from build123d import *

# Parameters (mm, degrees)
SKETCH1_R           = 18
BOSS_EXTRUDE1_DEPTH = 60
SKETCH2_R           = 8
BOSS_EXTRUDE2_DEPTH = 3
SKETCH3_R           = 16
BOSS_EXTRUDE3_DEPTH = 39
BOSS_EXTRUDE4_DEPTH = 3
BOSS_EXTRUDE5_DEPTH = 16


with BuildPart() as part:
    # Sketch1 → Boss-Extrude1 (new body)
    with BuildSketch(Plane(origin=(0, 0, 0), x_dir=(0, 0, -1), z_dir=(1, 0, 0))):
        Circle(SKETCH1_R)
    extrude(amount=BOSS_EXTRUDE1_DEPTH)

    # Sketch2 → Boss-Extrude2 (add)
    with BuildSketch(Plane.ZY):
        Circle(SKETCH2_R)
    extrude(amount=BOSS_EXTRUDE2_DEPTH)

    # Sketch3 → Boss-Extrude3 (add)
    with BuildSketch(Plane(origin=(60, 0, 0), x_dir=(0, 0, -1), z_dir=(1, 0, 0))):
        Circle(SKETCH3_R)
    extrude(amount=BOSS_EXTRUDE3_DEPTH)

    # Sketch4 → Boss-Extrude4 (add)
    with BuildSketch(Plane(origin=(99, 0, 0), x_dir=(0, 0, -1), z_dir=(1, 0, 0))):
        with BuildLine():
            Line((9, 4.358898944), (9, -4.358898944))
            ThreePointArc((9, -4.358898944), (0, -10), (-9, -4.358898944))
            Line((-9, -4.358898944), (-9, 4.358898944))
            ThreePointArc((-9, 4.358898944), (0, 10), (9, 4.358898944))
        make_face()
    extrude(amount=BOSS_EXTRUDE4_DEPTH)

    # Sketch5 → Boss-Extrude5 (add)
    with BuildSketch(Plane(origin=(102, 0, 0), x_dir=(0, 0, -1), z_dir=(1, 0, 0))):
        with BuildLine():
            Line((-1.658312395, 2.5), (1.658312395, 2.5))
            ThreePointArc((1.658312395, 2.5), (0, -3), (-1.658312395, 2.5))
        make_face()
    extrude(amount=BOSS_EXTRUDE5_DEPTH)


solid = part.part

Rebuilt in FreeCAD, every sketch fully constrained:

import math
import FreeCAD as App
import Part
import Sketcher
from FreeCAD import Vector
Q = App.Units.Quantity

doc = App.newDocument("Part")
body = doc.addObject("PartDesign::Body", "Body")

# Sketch on YZ plane
sketch1 = body.newObject("Sketcher::SketchObject", "Sketch")
sketch1.AttachmentSupport = (doc.getObject("YZ_Plane"), [""])
sketch1.MapMode = "FlatFace"
sketch1.addGeometry(Part.Circle(Vector(0, 0, 0), Vector(0, 0, 1), 18), False)
sketch1.addConstraint(Sketcher.Constraint("Coincident", 0, 3, -1, 1))
sketch1.addConstraint(Sketcher.Constraint("Diameter", 0, Q("36 mm")))
pad1 = body.newObject("PartDesign::Pad", "Pad")
pad1.Profile = sketch1
pad1.Length = 60

# Sketch on YZ plane
sketch2 = body.newObject("Sketcher::SketchObject", "Sketch001")
sketch2.AttachmentSupport = (doc.getObject("YZ_Plane"), [""])
sketch2.MapMode = "FlatFace"
sketch2.addGeometry(Part.Circle(Vector(0, 0, 0), Vector(0, 0, 1), 8), False)
sketch2.addConstraint(Sketcher.Constraint("Coincident", 0, 3, -1, 1))
sketch2.addConstraint(Sketcher.Constraint("Diameter", 0, Q("16 mm")))
pad2 = body.newObject("PartDesign::Pad", "Pad001")
pad2.Profile = sketch2
pad2.Length = 3
pad2.Reversed = True

# Sketch on YZ plane
sketch3 = body.newObject("Sketcher::SketchObject", "Sketch002")
sketch3.AttachmentSupport = (doc.getObject("YZ_Plane"), [""])
sketch3.MapMode = "FlatFace"
sketch3.AttachmentOffset = App.Placement(Vector(0, 0, 60), App.Rotation())
sketch3.addGeometry(Part.Circle(Vector(0, 0, 0), Vector(0, 0, 1), 16), False)
sketch3.addConstraint(Sketcher.Constraint("Coincident", 0, 3, -1, 1))
sketch3.addConstraint(Sketcher.Constraint("Diameter", 0, Q("32 mm")))
pad3 = body.newObject("PartDesign::Pad", "Pad002")
pad3.Profile = sketch3
pad3.Length = 39

# Sketch on YZ plane
sketch4 = body.newObject("Sketcher::SketchObject", "Sketch003")
sketch4.AttachmentSupport = (doc.getObject("YZ_Plane"), [""])
sketch4.MapMode = "FlatFace"
sketch4.AttachmentOffset = App.Placement(Vector(0, 0, 99), App.Rotation())
sketch4.addGeometry(Part.LineSegment(Vector(-4, -9, 0), Vector(4, -9, 0)), False)
sketch4.addGeometry(Part.ArcOfCircle(Part.Circle(Vector(0, 0, 0), Vector(0, 0, 1), 10), math.radians(-64), math.radians(64)), False)
sketch4.addGeometry(Part.LineSegment(Vector(4, 9, 0), Vector(-4, 9, 0)), False)
sketch4.addGeometry(Part.ArcOfCircle(Part.Circle(Vector(0, 0, 0), Vector(0, 0, 1), 10), math.radians(116), math.radians(244)), False)
sketch4.addConstraint(Sketcher.Constraint("Coincident", 0, 2, 1, 1))
sketch4.addConstraint(Sketcher.Constraint("Coincident", 1, 2, 2, 1))
sketch4.addConstraint(Sketcher.Constraint("Coincident", 2, 2, 3, 1))
sketch4.addConstraint(Sketcher.Constraint("Coincident", 3, 2, 0, 1))
sketch4.addConstraint(Sketcher.Constraint("Horizontal", 0))
sketch4.addConstraint(Sketcher.Constraint("Horizontal", 2))
sketch4.addConstraint(Sketcher.Constraint("Coincident", 1, 3, -1, 1))
sketch4.addConstraint(Sketcher.Constraint("Coincident", 3, 3, -1, 1))
sketch4.addConstraint(Sketcher.Constraint("Equal", 1, 3))
sketch4.addConstraint(Sketcher.Constraint("Vertical", 0, 2, 1, 2))
sketch4.addConstraint(Sketcher.Constraint("Radius", 1, Q("10 mm")))
sketch4.addConstraint(Sketcher.Constraint("DistanceY", 0, 2, -1, 1, Q("9 mm")))
pad4 = body.newObject("PartDesign::Pad", "Pad003")
pad4.Profile = sketch4
pad4.Length = 3

# Sketch on YZ plane
sketch5 = body.newObject("Sketcher::SketchObject", "Sketch004")
sketch5.AttachmentSupport = (doc.getObject("YZ_Plane"), [""])
sketch5.MapMode = "FlatFace"
sketch5.AttachmentOffset = App.Placement(Vector(0, 0, 102), App.Rotation())
sketch5.addGeometry(Part.LineSegment(Vector(2.5, -1.7, 0), Vector(2.5, 1.7, 0)), False)
sketch5.addGeometry(Part.ArcOfCircle(Part.Circle(Vector(0, 0, 0), Vector(0, 0, 1), 3), math.radians(34), math.radians(326)), False)
sketch5.addConstraint(Sketcher.Constraint("Coincident", 0, 1, 1, 2))
sketch5.addConstraint(Sketcher.Constraint("Coincident", 1, 1, 0, 2))
sketch5.addConstraint(Sketcher.Constraint("Vertical", 0))
sketch5.addConstraint(Sketcher.Constraint("Coincident", 1, 3, -1, 1))
sketch5.addConstraint(Sketcher.Constraint("Radius", 1, Q("3 mm")))
sketch5.addConstraint(Sketcher.Constraint("DistanceX", -1, 1, 0, 1, Q("2.5 mm")))
pad5 = body.newObject("PartDesign::Pad", "Pad004")
pad5.Profile = sketch5
pad5.Length = 16

doc.recompute()
